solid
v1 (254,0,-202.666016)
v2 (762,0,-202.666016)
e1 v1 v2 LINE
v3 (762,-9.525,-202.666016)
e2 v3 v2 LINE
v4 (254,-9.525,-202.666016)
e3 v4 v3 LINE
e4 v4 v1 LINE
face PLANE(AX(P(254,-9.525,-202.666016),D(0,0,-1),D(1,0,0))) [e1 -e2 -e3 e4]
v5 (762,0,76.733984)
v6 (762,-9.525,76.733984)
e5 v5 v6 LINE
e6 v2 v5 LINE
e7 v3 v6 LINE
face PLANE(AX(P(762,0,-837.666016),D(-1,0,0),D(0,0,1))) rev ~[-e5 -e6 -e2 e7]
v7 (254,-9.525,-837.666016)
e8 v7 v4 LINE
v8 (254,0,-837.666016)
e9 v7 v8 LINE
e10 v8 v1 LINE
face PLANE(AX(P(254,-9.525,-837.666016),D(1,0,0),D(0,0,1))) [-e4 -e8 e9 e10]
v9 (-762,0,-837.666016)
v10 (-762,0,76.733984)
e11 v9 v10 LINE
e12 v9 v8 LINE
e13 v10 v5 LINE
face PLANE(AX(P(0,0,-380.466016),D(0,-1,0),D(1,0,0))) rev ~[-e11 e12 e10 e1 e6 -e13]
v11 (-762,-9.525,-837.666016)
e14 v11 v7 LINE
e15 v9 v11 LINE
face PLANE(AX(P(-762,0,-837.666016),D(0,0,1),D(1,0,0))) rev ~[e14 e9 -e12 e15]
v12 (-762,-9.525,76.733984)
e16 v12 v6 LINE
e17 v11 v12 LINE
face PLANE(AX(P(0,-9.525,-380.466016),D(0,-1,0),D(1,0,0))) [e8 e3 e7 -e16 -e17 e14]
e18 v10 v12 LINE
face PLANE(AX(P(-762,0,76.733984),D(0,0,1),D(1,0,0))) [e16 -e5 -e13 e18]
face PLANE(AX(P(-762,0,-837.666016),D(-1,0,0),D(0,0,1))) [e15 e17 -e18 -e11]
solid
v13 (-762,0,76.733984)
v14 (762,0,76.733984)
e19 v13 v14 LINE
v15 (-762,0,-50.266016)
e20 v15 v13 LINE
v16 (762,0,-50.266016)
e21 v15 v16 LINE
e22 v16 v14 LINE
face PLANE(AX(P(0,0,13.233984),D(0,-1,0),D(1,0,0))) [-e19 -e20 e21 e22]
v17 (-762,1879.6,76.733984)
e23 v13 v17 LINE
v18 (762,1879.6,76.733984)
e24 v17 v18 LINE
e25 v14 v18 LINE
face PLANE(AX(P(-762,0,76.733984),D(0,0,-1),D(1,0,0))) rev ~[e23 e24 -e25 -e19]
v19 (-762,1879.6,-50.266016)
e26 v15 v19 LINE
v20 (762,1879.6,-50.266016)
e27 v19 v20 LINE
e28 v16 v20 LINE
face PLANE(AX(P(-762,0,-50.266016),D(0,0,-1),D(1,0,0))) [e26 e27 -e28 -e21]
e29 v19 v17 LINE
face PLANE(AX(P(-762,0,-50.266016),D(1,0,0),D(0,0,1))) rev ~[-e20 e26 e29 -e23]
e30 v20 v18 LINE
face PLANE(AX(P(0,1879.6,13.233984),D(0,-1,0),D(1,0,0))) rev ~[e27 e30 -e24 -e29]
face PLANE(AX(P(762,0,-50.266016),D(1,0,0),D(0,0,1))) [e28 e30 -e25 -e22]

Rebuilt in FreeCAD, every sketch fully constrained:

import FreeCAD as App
import Part
import Sketcher
Q = App.Units.Quantity

doc = App.newDocument("Part")
params = doc.addObject("Spreadsheet::Sheet", "Params")
for row, (alias, value) in enumerate([
    ("sketch1_width", "60 in"),
    ("sketch1_height", "5 in"),
    ("pad1_length", "74 in"),
    ("sketch2_width", "60 in"),
    ("sketch2_height", "36 in"),
    ("pad2_length", "0.375 in"),
    ("sketch3_width", "20 in"),
    ("sketch3_height", "25 in"),
    ("pocket1_length", "0.75 in"),
], start=1):
    params.set(f"A{row}", alias)
    params.set(f"B{row}", "=" + value)
    params.setAlias(f"B{row}", alias)

body = doc.addObject("PartDesign::Body", "Body")

# Sketch on XZ plane
sketch1 = body.newObject("Sketcher::SketchObject", "Sketch")
sketch1.AttachmentSupport = (doc.getObject("XZ_Plane"), [""])
sketch1.MapMode = "FlatFace"
sketch1.addGeometry(Part.LineSegment(App.Vector(-762, 77, 0), App.Vector(-762, -50, 0)), False)
sketch1.addGeometry(Part.LineSegment(App.Vector(-762, -50, 0), App.Vector(762, -50, 0)), False)
sketch1.addGeometry(Part.LineSegment(App.Vector(762, -50, 0), App.Vector(762, 77, 0)), False)
sketch1.addGeometry(Part.LineSegment(App.Vector(762, 77, 0), App.Vector(-762, 77, 0)), False)
sketch1.addConstraint(Sketcher.Constraint("Coincident", 0, 2, 1, 1))
sketch1.addConstraint(Sketcher.Constraint("Coincident", 1, 2, 2, 1))
sketch1.addConstraint(Sketcher.Constraint("Coincident", 2, 2, 3, 1))
sketch1.addConstraint(Sketcher.Constraint("Coincident", 3, 2, 0, 1))
sketch1.addConstraint(Sketcher.Constraint("Vertical", 0))
sketch1.addConstraint(Sketcher.Constraint("Horizontal", 1))
sketch1.addConstraint(Sketcher.Constraint("Vertical", 2))
sketch1.addConstraint(Sketcher.Constraint("Horizontal", 3))
sketch1.addConstraint(Sketcher.Constraint("DistanceX", 1, 1, 1, 2, Q("60 in")))
sketch1.addConstraint(Sketcher.Constraint("DistanceY", 0, 2, 0, 1, Q("5 in")))
sketch1.addConstraint(Sketcher.Constraint("DistanceX", 0, 2, -1, 1, Q("30 in")))
sketch1.addConstraint(Sketcher.Constraint("DistanceY", 0, 2, -1, 1, Q("50.266016 mm")))
sketch1.setExpression("Constraints[8]", "Params.sketch1_width")
sketch1.setExpression("Constraints[9]", "Params.sketch1_height")
pad1 = body.newObject("PartDesign::Pad", "Pad")
pad1.Profile = sketch1
pad1.setExpression("Length", "Params.pad1_length")
pad1.Reversed = True
body2 = doc.addObject("PartDesign::Body", "Body001")

# Sketch on XZ plane
sketch2 = body2.newObject("Sketcher::SketchObject", "Sketch001")
sketch2.AttachmentSupport = (doc.getObject("XZ_Plane001"), [""])
sketch2.MapMode = "FlatFace"
sketch2.addGeometry(Part.LineSegment(App.Vector(-762, 77, 0), App.Vector(-762, -838, 0)), False)
sketch2.addGeometry(Part.LineSegment(App.Vector(-762, -838, 0), App.Vector(762, -838, 0)), False)
sketch2.addGeometry(Part.LineSegment(App.Vector(762, -838, 0), App.Vector(762, 77, 0)), False)
sketch2.addGeometry(Part.LineSegment(App.Vector(762, 77, 0), App.Vector(-762, 77, 0)), False)
sketch2.addConstraint(Sketcher.Constraint("Coincident", 0, 2, 1, 1))
sketch2.addConstraint(Sketcher.Constraint("Coincident", 1, 2, 2, 1))
sketch2.addConstraint(Sketcher.Constraint("Coincident", 2, 2, 3, 1))
sketch2.addConstraint(Sketcher.Constraint("Coincident", 3, 2, 0, 1))
sketch2.addConstraint(Sketcher.Constraint("Vertical", 0))
sketch2.addConstraint(Sketcher.Constraint("Horizontal", 1))
sketch2.addConstraint(Sketcher.Constraint("Vertical", 2))
sketch2.addConstraint(Sketcher.Constraint("Horizontal", 3))
sketch2.addConstraint(Sketcher.Constraint("DistanceX", 1, 1, 1, 2, Q("60 in")))
sketch2.addConstraint(Sketcher.Constraint("DistanceY", 0, 2, 0, 1, Q("36 in")))
sketch2.addConstraint(Sketcher.Constraint("DistanceX", 0, 2, -1, 1, Q("30 in")))
sketch2.addConstraint(Sketcher.Constraint("DistanceY", 0, 2, -1, 1, Q("837.666016 mm")))
sketch2.setExpression("Constraints[8]", "Params.sketch2_width")
sketch2.setExpression("Constraints[9]", "Params.sketch2_height")
pad2 = body2.newObject("PartDesign::Pad", "Pad001")
pad2.Profile = sketch2
pad2.setExpression("Length", "Params.pad2_length")

# Sketch on XZ plane
sketch3 = body2.newObject("Sketcher::SketchObject", "Sketch002")
sketch3.AttachmentSupport = (doc.getObject("XZ_Plane001"), [""])
sketch3.MapMode = "FlatFace"
sketch3.AttachmentOffset = App.Placement(App.Vector(0, 0, 0.375 * 25.4), App.Rotation())
sketch3.addGeometry(Part.LineSegment(App.Vector(254, -203, 0), App.Vector(254, -838, 0)), False)
sketch3.addGeometry(Part.LineSegment(App.Vector(254, -838, 0), App.Vector(762, -838, 0)), False)
sketch3.addGeometry(Part.LineSegment(App.Vector(762, -838, 0), App.Vector(762, -203, 0)), False)
sketch3.addGeometry(Part.LineSegment(App.Vector(762, -203, 0), App.Vector(254, -203, 0)), False)
sketch3.addConstraint(Sketcher.Constraint("Coincident", 0, 2, 1, 1))
sketch3.addConstraint(Sketcher.Constraint("Coincident", 1, 2, 2, 1))
sketch3.addConstraint(Sketcher.Constraint("Coincident", 2, 2, 3, 1))
sketch3.addConstraint(Sketcher.Constraint("Coincident", 3, 2, 0, 1))
sketch3.addConstraint(Sketcher.Constraint("Vertical", 0))
sketch3.addConstraint(Sketcher.Constraint("Horizontal", 1))
sketch3.addConstraint(Sketcher.Constraint("Vertical", 2))
sketch3.addConstraint(Sketcher.Constraint("Horizontal", 3))
sketch3.addConstraint(Sketcher.Constraint("DistanceX", 1, 1, 1, 2, Q("20 in")))
sketch3.addConstraint(Sketcher.Constraint("DistanceY", 0, 2, 0, 1, Q("25 in")))
sketch3.addConstraint(Sketcher.Constraint("DistanceX", -1, 1, 0, 2, Q("10 in")))
sketch3.addConstraint(Sketcher.Constraint("DistanceY", 0, 2, -1, 1, Q("837.666016 mm")))
sketch3.setExpression("Constraints[8]", "Params.sketch3_width")
sketch3.setExpression("Constraints[9]", "Params.sketch3_height")
pocket1 = body2.newObject("PartDesign::Pocket", "Pocket")
pocket1.Profile = sketch3
pocket1.setExpression("Length", "Params.pocket1_length")

doc.recompute()
